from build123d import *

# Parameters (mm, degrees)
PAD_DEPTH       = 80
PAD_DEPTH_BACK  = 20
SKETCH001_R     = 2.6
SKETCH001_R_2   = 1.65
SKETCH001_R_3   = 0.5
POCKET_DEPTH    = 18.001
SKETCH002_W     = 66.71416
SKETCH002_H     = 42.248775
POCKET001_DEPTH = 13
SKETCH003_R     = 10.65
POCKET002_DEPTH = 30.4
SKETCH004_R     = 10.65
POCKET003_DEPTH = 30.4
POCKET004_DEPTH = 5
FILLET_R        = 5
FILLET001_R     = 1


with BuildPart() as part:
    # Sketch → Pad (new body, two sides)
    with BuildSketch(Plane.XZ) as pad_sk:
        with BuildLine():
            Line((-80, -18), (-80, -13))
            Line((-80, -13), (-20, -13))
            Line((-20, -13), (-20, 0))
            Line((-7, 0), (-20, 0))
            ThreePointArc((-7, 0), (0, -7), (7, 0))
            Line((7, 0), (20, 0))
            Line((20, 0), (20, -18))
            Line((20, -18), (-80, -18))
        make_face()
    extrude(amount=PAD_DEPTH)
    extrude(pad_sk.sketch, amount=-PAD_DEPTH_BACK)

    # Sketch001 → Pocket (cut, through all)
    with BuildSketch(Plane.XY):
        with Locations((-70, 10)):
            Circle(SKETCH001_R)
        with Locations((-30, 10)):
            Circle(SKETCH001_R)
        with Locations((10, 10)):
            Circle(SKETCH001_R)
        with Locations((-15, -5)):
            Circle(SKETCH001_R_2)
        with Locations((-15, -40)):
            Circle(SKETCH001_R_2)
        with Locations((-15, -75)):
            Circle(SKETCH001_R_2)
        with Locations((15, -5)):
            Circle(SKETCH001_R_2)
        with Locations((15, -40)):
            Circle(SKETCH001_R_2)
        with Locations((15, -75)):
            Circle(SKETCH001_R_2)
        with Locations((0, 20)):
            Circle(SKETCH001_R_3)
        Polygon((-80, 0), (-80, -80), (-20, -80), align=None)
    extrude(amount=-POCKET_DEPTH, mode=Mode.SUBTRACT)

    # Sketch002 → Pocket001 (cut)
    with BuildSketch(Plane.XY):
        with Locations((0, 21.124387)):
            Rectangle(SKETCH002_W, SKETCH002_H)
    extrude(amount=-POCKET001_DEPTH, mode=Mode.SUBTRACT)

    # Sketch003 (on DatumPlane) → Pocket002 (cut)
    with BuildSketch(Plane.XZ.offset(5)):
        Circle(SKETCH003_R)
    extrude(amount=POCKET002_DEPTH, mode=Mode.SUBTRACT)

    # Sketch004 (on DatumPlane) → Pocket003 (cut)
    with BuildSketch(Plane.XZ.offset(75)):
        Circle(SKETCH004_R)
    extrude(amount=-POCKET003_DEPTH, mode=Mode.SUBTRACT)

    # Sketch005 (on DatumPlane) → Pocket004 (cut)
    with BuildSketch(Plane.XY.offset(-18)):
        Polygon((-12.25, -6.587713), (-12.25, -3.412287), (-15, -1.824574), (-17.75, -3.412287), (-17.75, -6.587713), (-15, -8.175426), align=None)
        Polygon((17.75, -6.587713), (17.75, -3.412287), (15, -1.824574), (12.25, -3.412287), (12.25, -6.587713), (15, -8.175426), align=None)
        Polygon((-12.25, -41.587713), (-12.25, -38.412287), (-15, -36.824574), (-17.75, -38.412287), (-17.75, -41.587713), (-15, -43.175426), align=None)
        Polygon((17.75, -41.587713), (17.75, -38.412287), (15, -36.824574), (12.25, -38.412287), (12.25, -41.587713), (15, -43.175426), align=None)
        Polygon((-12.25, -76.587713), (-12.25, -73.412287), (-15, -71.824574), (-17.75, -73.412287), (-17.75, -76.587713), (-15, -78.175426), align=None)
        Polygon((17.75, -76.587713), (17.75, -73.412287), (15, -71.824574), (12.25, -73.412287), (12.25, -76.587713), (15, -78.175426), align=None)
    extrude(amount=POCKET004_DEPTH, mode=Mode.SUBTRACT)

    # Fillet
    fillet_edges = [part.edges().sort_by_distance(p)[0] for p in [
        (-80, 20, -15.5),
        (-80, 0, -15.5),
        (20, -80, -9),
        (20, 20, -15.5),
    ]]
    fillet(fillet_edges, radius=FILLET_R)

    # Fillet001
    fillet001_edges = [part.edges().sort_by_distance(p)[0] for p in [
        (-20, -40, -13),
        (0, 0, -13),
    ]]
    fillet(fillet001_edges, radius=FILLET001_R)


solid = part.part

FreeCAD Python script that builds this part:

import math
import FreeCAD as App
import Part
import Sketcher

V = App.Vector
Q = App.Units.Quantity


def edges_at(feature, points):
    """Names of the edges that pass closest to the given points."""
    edges = feature.Shape.Edges
    near = lambda p: min(range(len(edges)), key=lambda i: edges[i].distToShape(Part.Vertex(*p))[0])
    return sorted({f"Edge{near(p) + 1}" for p in points})


def add_polygon(sketch, points):
    """Adds a closed chain of lines whose ends are joined by coincident constraints."""
    first, n = sketch.GeometryCount, len(points)
    for a, b in zip(points, points[1:] + points[:1]):
        sketch.addGeometry(Part.LineSegment(App.Vector(*a, 0), App.Vector(*b, 0)), False)
    for i in range(n):
        sketch.addConstraint(Sketcher.Constraint("Coincident", first + i, 2, first + (i + 1) % n, 1))

doc = App.newDocument("Part")
params = doc.addObject("Spreadsheet::Sheet", "Params")
for row, (alias, value) in enumerate([
    ("sketch1_radius", "7 mm"),
    ("sketch1_width", "100 mm"),
    ("sketch1_width2", "13 mm"),
    ("sketch1_height", "5 mm"),
    ("pad1_length", "80 mm"),
    ("pad1_length2", "20 mm"),
    ("sketch2_diameter", "1 mm"),
    ("sketch2_diameter2", "5.2 mm"),
    ("sketch2_diameter3", "3.3 mm"),
    ("sketch2_width", "60 mm"),
    ("sketch2_height", "80 mm"),
    ("pocket2_length", "13 mm"),
    ("sketch4_diameter", "21.3 mm"),
    ("pocket3_length", "30.4 mm"),
    ("sketch5_diameter", "21.3 mm"),
    ("pocket4_length", "30.4 mm"),
    ("pocket5_length", "5 mm"),
    ("fillet_radius", "5 mm"),
    ("fillet2_radius", "1 mm"),
], start=1):
    params.set(f"A{row}", alias)
    params.set(f"B{row}", "=" + value)
    params.setAlias(f"B{row}", alias)

body = doc.addObject("PartDesign::Body", "Body")

# Sketch on XZ plane
sketch1 = doc.addObject("Sketcher::SketchObject", "Sketch")
body.addObject(sketch1)
sketch1.AttachmentSupport = (doc.XZ_Plane, [""])
sketch1.MapMode = "FlatFace"
sketch1.addGeometry(Part.LineSegment(V(-80, -13, 0), V(-80, -18, 0)), False)
sketch1.addGeometry(Part.LineSegment(V(-80, -18, 0), V(20, -18, 0)), False)
sketch1.addGeometry(Part.LineSegment(V(20, -18, 0), V(20, 0, 0)), False)
sketch1.addGeometry(Part.LineSegment(V(20, 0, 0), V(7, 0, 0)), False)
sketch1.addGeometry(Part.ArcOfCircle(Part.Circle(V(0, 0, 0), V(0, 0, 1), 7), math.radians(180), math.radians(360)), False)
sketch1.addGeometry(Part.LineSegment(V(-7, 0, 0), V(-20, 0, 0)), False)
sketch1.addGeometry(Part.LineSegment(V(-20, 0, 0), V(-20, -13, 0)), False)
sketch1.addGeometry(Part.LineSegment(V(-20, -13, 0), V(-80, -13, 0)), False)
sketch1.addConstraint(Sketcher.Constraint("Coincident", 0, 2, 1, 1))
sketch1.addConstraint(Sketcher.Constraint("Coincident", 1, 2, 2, 1))
sketch1.addConstraint(Sketcher.Constraint("Coincident", 2, 2, 3, 1))
sketch1.addConstraint(Sketcher.Constraint("Coincident", 3, 2, 4, 2))
sketch1.addConstraint(Sketcher.Constraint("Coincident", 4, 1, 5, 1))
sketch1.addConstraint(Sketcher.Constraint("Coincident", 5, 2, 6, 1))
sketch1.addConstraint(Sketcher.Constraint("Coincident", 6, 2, 7, 1))
sketch1.addConstraint(Sketcher.Constraint("Coincident", 7, 2, 0, 1))
sketch1.addConstraint(Sketcher.Constraint("Vertical", 0))
sketch1.addConstraint(Sketcher.Constraint("Horizontal", 1))
sketch1.addConstraint(Sketcher.Constraint("Vertical", 2))
sketch1.addConstraint(Sketcher.Constraint("Horizontal", 3))
sketch1.addConstraint(Sketcher.Constraint("Horizontal", 5))
sketch1.addConstraint(Sketcher.Constraint("Vertical", 6))
sketch1.addConstraint(Sketcher.Constraint("Horizontal", 7))
sketch1.addConstraint(Sketcher.Constraint("Coincident", 4, 3, -1, 1))
sketch1.addConstraint(Sketcher.Constraint("Symmetric", 2, 2, 5, 2, -1, 1))
sketch1.addConstraint(Sketcher.Constraint("PointOnObject", 2, 2, -1))
sketch1.addConstraint(Sketcher.Constraint("Equal", 5, 6))
sketch1.addConstraint(Sketcher.Constraint("Radius", 4, 7.0))
sketch1.addConstraint(Sketcher.Constraint("DistanceX", 1, 1, 1, 2, 100.0))
sketch1.addConstraint(Sketcher.Constraint("DistanceX", 3, 2, 3, 1, 13.0))
sketch1.addConstraint(Sketcher.Constraint("DistanceY", 0, 2, 0, 1, 5.0))
sketch1.setExpression("Constraints[19]", "Params.sketch1_radius")
sketch1.setExpression("Constraints[20]", "Params.sketch1_width")
sketch1.setExpression("Constraints[21]", "Params.sketch1_width2")
sketch1.setExpression("Constraints[22]", "Params.sketch1_height")
pad1 = doc.addObject("PartDesign::Pad", "Pad")
body.addObject(pad1)
pad1.Profile = sketch1
pad1.Type = "TwoLengths"
pad1.setExpression("Length", "Params.pad1_length")
pad1.setExpression("Length2", "Params.pad1_length2")

# Sketch on XY plane
sketch2 = doc.addObject("Sketcher::SketchObject", "Sketch001")
body.addObject(sketch2)
sketch2.AttachmentSupport = (doc.XY_Plane, [""])
sketch2.MapMode = "FlatFace"
sketch2.addGeometry(Part.Circle(V(-70, 10, 0), V(0, 0, 1), 2.6), False)  # 0
sketch2.addGeometry(Part.Circle(V(-30, 10, 0), V(0, 0, 1), 2.6), False)  # 1
sketch2.addGeometry(Part.Circle(V(10, 10, 0), V(0, 0, 1), 2.6), False)  # 2
sketch2.addGeometry(Part.Circle(V(-15, -5, 0), V(0, 0, 1), 1.6), False)  # 3
sketch2.addGeometry(Part.Circle(V(-15, -40, 0), V(0, 0, 1), 1.6), False)  # 4
sketch2.addGeometry(Part.Circle(V(-15, -75, 0), V(0, 0, 1), 1.6), False)  # 5
sketch2.addGeometry(Part.Circle(V(15, -5, 0), V(0, 0, 1), 1.6), False)  # 6
sketch2.addGeometry(Part.Circle(V(15, -40, 0), V(0, 0, 1), 1.6), False)  # 7
sketch2.addGeometry(Part.Circle(V(15, -75, 0), V(0, 0, 1), 1.6), False)  # 8
sketch2.addGeometry(Part.Circle(V(0, 20, 0), V(0, 0, 1), 0.5), False)  # 9
add_polygon(sketch2, [(-80, 0), (-80, -80), (-20, -80)])  # lines 10-12
sketch2.addConstraint(Sketcher.Constraint("Vertical", 10))
sketch2.addConstraint(Sketcher.Constraint("Horizontal", 11))
sketch2.addConstraint(Sketcher.Constraint("Equal", 0, 1))
sketch2.addConstraint(Sketcher.Constraint("Equal", 1, 2))
sketch2.addConstraint(Sketcher.Constraint("Equal", 3, 4))
sketch2.addConstraint(Sketcher.Constraint("Equal", 4, 5))
sketch2.addConstraint(Sketcher.Constraint("Equal", 5, 6))
sketch2.addConstraint(Sketcher.Constraint("Equal", 6, 7))
sketch2.addConstraint(Sketcher.Constraint("Equal", 7, 8))
sketch2.addConstraint(Sketcher.Constraint("Symmetric", 3, 3, 6, 3, -2))
sketch2.addConstraint(Sketcher.Constraint("Symmetric", 4, 3, 7, 3, -2))
sketch2.addConstraint(Sketcher.Constraint("Symmetric", 5, 3, 8, 3, -2))
sketch2.addConstraint(Sketcher.Constraint("PointOnObject", 9, 3, -2))
sketch2.addConstraint(Sketcher.Constraint("PointOnObject", 12, 2, -1))
sketch2.addConstraint(Sketcher.Constraint("Horizontal", 0, 3, 1, 3))
sketch2.addConstraint(Sketcher.Constraint("Horizontal", 1, 3, 2, 3))
sketch2.addConstraint(Sketcher.Constraint("Vertical", 3, 3, 4, 3))
sketch2.addConstraint(Sketcher.Constraint("Vertical", 4, 3, 5, 3))
sketch2.addConstraint(Sketcher.Constraint("Diameter", 9, 1.0))
sketch2.addConstraint(Sketcher.Constraint("Diameter", 0, 5.2))
sketch2.addConstraint(Sketcher.Constraint("Diameter", 3, 3.3))
sketch2.addConstraint(Sketcher.Constraint("DistanceX", 11, 1, 11, 2, 60.0))
sketch2.addConstraint(Sketcher.Constraint("DistanceY", 10, 2, 10, 1, 80.0))
sketch2.addConstraint(Sketcher.Constraint("DistanceX", 0, 3, -1, 1, 70.0))
sketch2.addConstraint(Sketcher.Constraint("DistanceY", -1, 1, 0, 3, 10.0))
sketch2.addConstraint(Sketcher.Constraint("DistanceX", 1, 3, -1, 1, 30.0))
sketch2.addConstraint(Sketcher.Constraint("DistanceX", -1, 1, 2, 3, 10.0))
sketch2.addConstraint(Sketcher.Constraint("DistanceX", 3, 3, -1, 1, 15.0))
sketch2.addConstraint(Sketcher.Constraint("DistanceY", 3, 3, -1, 1, 5.0))
sketch2.addConstraint(Sketcher.Constraint("DistanceY", 4, 3, -1, 1, 40.0))
sketch2.addConstraint(Sketcher.Constraint("DistanceY", 5, 3, -1, 1, 75.0))
sketch2.addConstraint(Sketcher.Constraint("DistanceY", -1, 1, 9, 3, 20.0))
sketch2.addConstraint(Sketcher.Constraint("DistanceX", 10, 2, -1, 1, 80.0))
sketch2.setExpression("Constraints[21]", "Params.sketch2_diameter")
sketch2.setExpression("Constraints[22]", "Params.sketch2_diameter2")
sketch2.setExpression("Constraints[23]", "Params.sketch2_diameter3")
sketch2.setExpression("Constraints[24]", "Params.sketch2_width")
sketch2.setExpression("Constraints[25]", "Params.sketch2_height")
pocket1 = doc.addObject("PartDesign::Pocket", "Pocket")
body.addObject(pocket1)
pocket1.Profile = sketch2
pocket1.Type = "ThroughAll"

# Sketch on XY plane
sketch3 = doc.addObject("Sketcher::SketchObject", "Sketch002")
body.addObject(sketch3)
sketch3.AttachmentSupport = (doc.XY_Plane, [""])
sketch3.MapMode = "FlatFace"
add_polygon(sketch3, [(-33, 42), (-33, 0), (33, 0), (33, 42)])  # lines 0-3
sketch3.addConstraint(Sketcher.Constraint("Vertical", 0))
sketch3.addConstraint(Sketcher.Constraint("Horizontal", 1))
sketch3.addConstraint(Sketcher.Constraint("Vertical", 2))
sketch3.addConstraint(Sketcher.Constraint("Horizontal", 3))
sketch3.addConstraint(Sketcher.Constraint("Symmetric", 0, 2, 1, 2, -1, 1))
sketch3.addConstraint(Sketcher.Constraint("DistanceX", 1, 1, 1, 2, 66.71416))
sketch3.addConstraint(Sketcher.Constraint("DistanceY", 0, 2, 0, 1, 42.248775))
pocket2 = doc.addObject("PartDesign::Pocket", "Pocket001")
body.addObject(pocket2)
pocket2.Profile = sketch3
pocket2.setExpression("Length", "Params.pocket2_length")

# Sketch on XZ plane
sketch4 = doc.addObject("Sketcher::SketchObject", "Sketch003")
body.addObject(sketch4)
sketch4.AttachmentSupport = (doc.XZ_Plane, [""])
sketch4.MapMode = "FlatFace"
sketch4.AttachmentOffset = App.Placement(V(0, 0, 5), App.Rotation())
sketch4.addGeometry(Part.Circle(V(0, 0, 0), V(0, 0, 1), 11), False)
sketch4.addConstraint(Sketcher.Constraint("Coincident", 0, 3, -1, 1))
sketch4.addConstraint(Sketcher.Constraint("Diameter", 0, 21.3))
sketch4.setExpression("Constraints[1]", "Params.sketch4_diameter")
pocket3 = doc.addObject("PartDesign::Pocket", "Pocket002")
body.addObject(pocket3)
pocket3.Profile = sketch4
pocket3.setExpression("Length", "Params.pocket3_length")
pocket3.Reversed = True

# Sketch on XZ plane
sketch5 = doc.addObject("Sketcher::SketchObject", "Sketch004")
body.addObject(sketch5)
sketch5.AttachmentSupport = (doc.XZ_Plane, [""])
sketch5.MapMode = "FlatFace"
sketch5.AttachmentOffset = App.Placement(V(0, 0, 75), App.Rotation())
sketch5.addGeometry(Part.Circle(V(0, 0, 0), V(0, 0, 1), 11), False)
sketch5.addConstraint(Sketcher.Constraint("Coincident", 0, 3, -1, 1))
sketch5.addConstraint(Sketcher.Constraint("Diameter", 0, 21.3))
sketch5.setExpression("Constraints[1]", "Params.sketch5_diameter")
pocket4 = doc.addObject("PartDesign::Pocket", "Pocket003")
body.addObject(pocket4)
pocket4.Profile = sketch5
pocket4.setExpression("Length", "Params.pocket4_length")

# Sketch on XY plane
sketch6 = doc.addObject("Sketcher::SketchObject", "Sketch005")
body.addObject(sketch6)
sketch6.AttachmentSupport = (doc.XY_Plane, [""])
sketch6.MapMode = "FlatFace"
sketch6.AttachmentOffset = App.Placement(V(0, 0, -18), App.Rotation())
add_polygon(sketch6, [(-12.2, -6.6), (-12.2, -3.4), (-15, -1.8), (-17.8, -3.4), (-17.8, -6.6), (-15, -8.2)])  # lines 0-5
add_polygon(sketch6, [(17.8, -6.6), (17.8, -3.4), (15, -1.8), (12.2, -3.4), (12.2, -6.6), (15, -8.2)])  # lines 6-11
add_polygon(sketch6, [(-12.2, -41.6), (-12.2, -38.4), (-15, -36.8), (-17.8, -38.4), (-17.8, -41.6), (-15, -43.2)])  # lines 12-17
add_polygon(sketch6, [(17.8, -41.6), (17.8, -38.4), (15, -36.8), (12.2, -38.4), (12.2, -41.6), (15, -43.2)])  # lines 18-23
add_polygon(sketch6, [(-12.2, -76.6), (-12.2, -73.4), (-15, -71.8), (-17.8, -73.4), (-17.8, -76.6), (-15, -78.2)])  # lines 24-29
add_polygon(sketch6, [(17.8, -76.6), (17.8, -73.4), (15, -71.8), (12.2, -73.4), (12.2, -76.6), (15, -78.2)])  # lines 30-35
sketch6.addConstraint(Sketcher.Constraint("Vertical", 0))
sketch6.addConstraint(Sketcher.Constraint("Vertical", 3))
sketch6.addConstraint(Sketcher.Constraint("Vertical", 6))
sketch6.addConstraint(Sketcher.Constraint("Vertical", 9))
sketch6.addConstraint(Sketcher.Constraint("Vertical", 12))
sketch6.addConstraint(Sketcher.Constraint("Vertical", 15))
sketch6.addConstraint(Sketcher.Constraint("Vertical", 18))
sketch6.addConstraint(Sketcher.Constraint("Vertical", 21))
sketch6.addConstraint(Sketcher.Constraint("Vertical", 24))
sketch6.addConstraint(Sketcher.Constraint("Vertical", 27))
sketch6.addConstraint(Sketcher.Constraint("Vertical", 30))
sketch6.addConstraint(Sketcher.Constraint("Vertical", 33))
sketch6.addConstraint(Sketcher.Constraint("Symmetric", 2, 2, 6, 2, -2))
sketch6.addConstraint(Sketcher.Constraint("Symmetric", 1, 2, 7, 2, -2))
sketch6.addConstraint(Sketcher.Constraint("Symmetric", 0, 2, 8, 2, -2))
sketch6.addConstraint(Sketcher.Constraint("Symmetric", 4, 2, 10, 2, -2))
sketch6.addConstraint(Sketcher.Constraint("Symmetric", 14, 2, 18, 2, -2))
sketch6.addConstraint(Sketcher.Constraint("Symmetric", 13, 2, 19, 2, -2))
sketch6.addConstraint(Sketcher.Constraint("Symmetric", 12, 2, 20, 2, -2))
sketch6.addConstraint(Sketcher.Constraint("Symmetric", 16, 2, 22, 2, -2))
sketch6.addConstraint(Sketcher.Constraint("Symmetric", 26, 2, 30, 2, -2))
sketch6.addConstraint(Sketcher.Constraint("Symmetric", 25, 2, 31, 2, -2))
sketch6.addConstraint(Sketcher.Constraint("Symmetric", 24, 2, 32, 2, -2))
sketch6.addConstraint(Sketcher.Constraint("Symmetric", 28, 2, 34, 2, -2))
sketch6.addConstraint(Sketcher.Constraint("Parallel", 1, 4))
sketch6.addConstraint(Sketcher.Constraint("Parallel", 2, 5))
sketch6.addConstraint(Sketcher.Constraint("Parallel", 4, 7))
sketch6.addConstraint(Sketcher.Constraint("Parallel", 7, 10))
sketch6.addConstraint(Sketcher.Constraint("Parallel", 8, 11))
sketch6.addConstraint(Sketcher.Constraint("Parallel", 10, 13))
sketch6.addConstraint(Sketcher.Constraint("Parallel", 11, 14))
sketch6.addConstraint(Sketcher.Constraint("Parallel", 13, 16))
sketch6.addConstraint(Sketcher.Constraint("Parallel", 14, 17))
sketch6.addConstraint(Sketcher.Constraint("Parallel", 19, 22))
sketch6.addConstraint(Sketcher.Constraint("Parallel", 20, 23))
sketch6.addConstraint(Sketcher.Constraint("Parallel", 22, 25))
sketch6.addConstraint(Sketcher.Constraint("Parallel", 23, 26))
sketch6.addConstraint(Sketcher.Constraint("Parallel", 25, 28))
sketch6.addConstraint(Sketcher.Constraint("Parallel", 26, 29))
sketch6.addConstraint(Sketcher.Constraint("Parallel", 31, 34))
sketch6.addConstraint(Sketcher.Constraint("Parallel", 32, 35))
sketch6.addConstraint(Sketcher.Constraint("Horizontal", 0, 2, 2, 2))
sketch6.addConstraint(Sketcher.Constraint("Horizontal", 3, 2, 5, 2))
sketch6.addConstraint(Sketcher.Constraint("Horizontal", 12, 2, 14, 2))
sketch6.addConstraint(Sketcher.Constraint("Horizontal", 15, 2, 17, 2))
sketch6.addConstraint(Sketcher.Constraint("Horizontal", 24, 2, 26, 2))
sketch6.addConstraint(Sketcher.Constraint("Horizontal", 27, 2, 29, 2))
sketch6.addConstraint(Sketcher.Constraint("Vertical", 5, 2, 12, 2))
sketch6.addConstraint(Sketcher.Constraint("Vertical", 4, 2, 13, 2))
sketch6.addConstraint(Sketcher.Constraint("Vertical", 17, 2, 24, 2))
sketch6.addConstraint(Sketcher.Constraint("Vertical", 16, 2, 25, 2))
sketch6.addConstraint(Sketcher.Constraint("Equal", 9, 12))
sketch6.addConstraint(Sketcher.Constraint("Equal", 21, 24))
sketch6.addConstraint(Sketcher.Constraint("Angle", 1, Q("150.000004 deg")))
sketch6.addConstraint(Sketcher.Constraint("DistanceX", 1, 2, -1, 1, 15.0))
sketch6.addConstraint(Sketcher.Constraint("DistanceY", 12, 2, 0, 2, 35.0))
sketch6.addConstraint(Sketcher.Constraint("DistanceY", 24, 2, 12, 2, 35.0))
sketch6.addConstraint(Sketcher.Constraint("DistanceX", 2, 2, 0, 2, 5.5))
sketch6.addConstraint(Sketcher.Constraint("DistanceY", 0, 1, 0, 2, 3.175426))
sketch6.addConstraint(Sketcher.Constraint("DistanceY", 0, 2, -1, 1, 3.412287))
pocket5 = doc.addObject("PartDesign::Pocket", "Pocket004")
body.addObject(pocket5)
pocket5.Profile = sketch6
pocket5.setExpression("Length", "Params.pocket5_length")
pocket5.Reversed = True
doc.recompute()

fillet = doc.addObject("PartDesign::Fillet", "Fillet")
body.addObject(fillet)
fillet.Base = (pocket5, edges_at(pocket5, [
    (-80, 20, -15.5),
    (-80, 0, -15.5),
    (20, -80, -9),
    (20, 20, -15.5),
]))
fillet.setExpression("Radius", "Params.fillet_radius")
doc.recompute()

fillet2 = doc.addObject("PartDesign::Fillet", "Fillet001")
body.addObject(fillet2)
fillet2.Base = (fillet, edges_at(fillet, [(-20, -40, -13), (0, 0, -13)]))
fillet2.setExpression("Radius", "Params.fillet2_radius")

doc.recompute()
